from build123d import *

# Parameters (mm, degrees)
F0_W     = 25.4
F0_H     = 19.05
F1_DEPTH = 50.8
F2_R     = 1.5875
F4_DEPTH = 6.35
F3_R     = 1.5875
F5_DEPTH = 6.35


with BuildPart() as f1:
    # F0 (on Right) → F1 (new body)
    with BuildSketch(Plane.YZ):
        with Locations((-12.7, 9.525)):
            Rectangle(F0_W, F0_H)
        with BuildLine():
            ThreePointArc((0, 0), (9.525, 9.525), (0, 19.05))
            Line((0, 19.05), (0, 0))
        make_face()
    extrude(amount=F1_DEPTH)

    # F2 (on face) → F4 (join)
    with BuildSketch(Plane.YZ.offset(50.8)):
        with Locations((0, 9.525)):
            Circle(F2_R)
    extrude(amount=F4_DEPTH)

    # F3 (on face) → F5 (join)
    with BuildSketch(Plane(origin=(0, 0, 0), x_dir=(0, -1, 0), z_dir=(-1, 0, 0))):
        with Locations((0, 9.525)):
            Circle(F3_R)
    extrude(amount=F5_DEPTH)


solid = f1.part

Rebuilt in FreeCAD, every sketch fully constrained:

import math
import FreeCAD as App
import Part
import Sketcher

V = App.Vector
Q = App.Units.Quantity

doc = App.newDocument("Part")
body = doc.addObject("PartDesign::Body", "Body")

# Sketch on YZ plane
sketch1 = body.newObject("Sketcher::SketchObject", "Sketch")
sketch1.AttachmentSupport = (doc.getObject("YZ_Plane"), [""])
sketch1.MapMode = "FlatFace"
sketch1.addGeometry([
    Part.LineSegment(V(-25, 19, 0), V(-25, 0, 0)),
    Part.LineSegment(V(-25, 0, 0), V(0, 0, 0)),
    Part.ArcOfCircle(Part.Circle(V(0, 10, 0), V(0, 0, 1), 10), math.radians(-90), math.radians(90)),
    Part.LineSegment(V(0, 19, 0), V(-25, 19, 0)),
], False)
sketch1.addConstraint([
    Sketcher.Constraint("Coincident", 0, 2, 1, 1),
    Sketcher.Constraint("Tangent", 1, 2, 2, 1),
    Sketcher.Constraint("Tangent", 2, 2, 3, 1),
    Sketcher.Constraint("Coincident", 3, 2, 0, 1),
    Sketcher.Constraint("Vertical", 0),
    Sketcher.Constraint("Horizontal", 1),
    Sketcher.Constraint("Horizontal", 3),
    Sketcher.Constraint("Coincident", 1, 2, -1, 1),
    Sketcher.Constraint("DistanceX", 1, 1, 1, 2, Q("1 in")),
    Sketcher.Constraint("Radius", 2, Q("0.375 in")),
])
pad1 = body.newObject("PartDesign::Pad", "Pad")
pad1.Profile = sketch1
pad1.Length = Q("2 in")

# Sketch on YZ plane
sketch2 = body.newObject("Sketcher::SketchObject", "Sketch001")
sketch2.AttachmentSupport = (doc.getObject("YZ_Plane"), [""])
sketch2.MapMode = "FlatFace"
sketch2.AttachmentOffset = App.Placement(V(0, 0, 2 * 25.4), App.Rotation())
sketch2.addGeometry(Part.Circle(V(0, 9.5, 0), V(0, 0, 1), 1.6), False)
sketch2.addConstraint([
    Sketcher.Constraint("PointOnObject", 0, 3, -2),
    Sketcher.Constraint("Diameter", 0, Q("0.125 in")),
    Sketcher.Constraint("DistanceY", -1, 1, 0, 3, Q("0.375 in")),
])
pad2 = body.newObject("PartDesign::Pad", "Pad001")
pad2.Profile = sketch2
pad2.Length = Q("0.25 in")

# Sketch on YZ plane
sketch3 = body.newObject("Sketcher::SketchObject", "Sketch002")
sketch3.AttachmentSupport = (doc.getObject("YZ_Plane"), [""])
sketch3.MapMode = "FlatFace"
sketch3.addGeometry(Part.Circle(V(0, 9.5, 0), V(0, 0, 1), 1.6), False)
sketch3.addConstraint([
    Sketcher.Constraint("PointOnObject", 0, 3, -2),
    Sketcher.Constraint("Diameter", 0, Q("0.125 in")),
    Sketcher.Constraint("DistanceY", -1, 1, 0, 3, Q("0.375 in")),
])
pad3 = body.newObject("PartDesign::Pad", "Pad002")
pad3.Profile = sketch3
pad3.Length = Q("0.25 in")
pad3.Reversed = True

doc.recompute()
